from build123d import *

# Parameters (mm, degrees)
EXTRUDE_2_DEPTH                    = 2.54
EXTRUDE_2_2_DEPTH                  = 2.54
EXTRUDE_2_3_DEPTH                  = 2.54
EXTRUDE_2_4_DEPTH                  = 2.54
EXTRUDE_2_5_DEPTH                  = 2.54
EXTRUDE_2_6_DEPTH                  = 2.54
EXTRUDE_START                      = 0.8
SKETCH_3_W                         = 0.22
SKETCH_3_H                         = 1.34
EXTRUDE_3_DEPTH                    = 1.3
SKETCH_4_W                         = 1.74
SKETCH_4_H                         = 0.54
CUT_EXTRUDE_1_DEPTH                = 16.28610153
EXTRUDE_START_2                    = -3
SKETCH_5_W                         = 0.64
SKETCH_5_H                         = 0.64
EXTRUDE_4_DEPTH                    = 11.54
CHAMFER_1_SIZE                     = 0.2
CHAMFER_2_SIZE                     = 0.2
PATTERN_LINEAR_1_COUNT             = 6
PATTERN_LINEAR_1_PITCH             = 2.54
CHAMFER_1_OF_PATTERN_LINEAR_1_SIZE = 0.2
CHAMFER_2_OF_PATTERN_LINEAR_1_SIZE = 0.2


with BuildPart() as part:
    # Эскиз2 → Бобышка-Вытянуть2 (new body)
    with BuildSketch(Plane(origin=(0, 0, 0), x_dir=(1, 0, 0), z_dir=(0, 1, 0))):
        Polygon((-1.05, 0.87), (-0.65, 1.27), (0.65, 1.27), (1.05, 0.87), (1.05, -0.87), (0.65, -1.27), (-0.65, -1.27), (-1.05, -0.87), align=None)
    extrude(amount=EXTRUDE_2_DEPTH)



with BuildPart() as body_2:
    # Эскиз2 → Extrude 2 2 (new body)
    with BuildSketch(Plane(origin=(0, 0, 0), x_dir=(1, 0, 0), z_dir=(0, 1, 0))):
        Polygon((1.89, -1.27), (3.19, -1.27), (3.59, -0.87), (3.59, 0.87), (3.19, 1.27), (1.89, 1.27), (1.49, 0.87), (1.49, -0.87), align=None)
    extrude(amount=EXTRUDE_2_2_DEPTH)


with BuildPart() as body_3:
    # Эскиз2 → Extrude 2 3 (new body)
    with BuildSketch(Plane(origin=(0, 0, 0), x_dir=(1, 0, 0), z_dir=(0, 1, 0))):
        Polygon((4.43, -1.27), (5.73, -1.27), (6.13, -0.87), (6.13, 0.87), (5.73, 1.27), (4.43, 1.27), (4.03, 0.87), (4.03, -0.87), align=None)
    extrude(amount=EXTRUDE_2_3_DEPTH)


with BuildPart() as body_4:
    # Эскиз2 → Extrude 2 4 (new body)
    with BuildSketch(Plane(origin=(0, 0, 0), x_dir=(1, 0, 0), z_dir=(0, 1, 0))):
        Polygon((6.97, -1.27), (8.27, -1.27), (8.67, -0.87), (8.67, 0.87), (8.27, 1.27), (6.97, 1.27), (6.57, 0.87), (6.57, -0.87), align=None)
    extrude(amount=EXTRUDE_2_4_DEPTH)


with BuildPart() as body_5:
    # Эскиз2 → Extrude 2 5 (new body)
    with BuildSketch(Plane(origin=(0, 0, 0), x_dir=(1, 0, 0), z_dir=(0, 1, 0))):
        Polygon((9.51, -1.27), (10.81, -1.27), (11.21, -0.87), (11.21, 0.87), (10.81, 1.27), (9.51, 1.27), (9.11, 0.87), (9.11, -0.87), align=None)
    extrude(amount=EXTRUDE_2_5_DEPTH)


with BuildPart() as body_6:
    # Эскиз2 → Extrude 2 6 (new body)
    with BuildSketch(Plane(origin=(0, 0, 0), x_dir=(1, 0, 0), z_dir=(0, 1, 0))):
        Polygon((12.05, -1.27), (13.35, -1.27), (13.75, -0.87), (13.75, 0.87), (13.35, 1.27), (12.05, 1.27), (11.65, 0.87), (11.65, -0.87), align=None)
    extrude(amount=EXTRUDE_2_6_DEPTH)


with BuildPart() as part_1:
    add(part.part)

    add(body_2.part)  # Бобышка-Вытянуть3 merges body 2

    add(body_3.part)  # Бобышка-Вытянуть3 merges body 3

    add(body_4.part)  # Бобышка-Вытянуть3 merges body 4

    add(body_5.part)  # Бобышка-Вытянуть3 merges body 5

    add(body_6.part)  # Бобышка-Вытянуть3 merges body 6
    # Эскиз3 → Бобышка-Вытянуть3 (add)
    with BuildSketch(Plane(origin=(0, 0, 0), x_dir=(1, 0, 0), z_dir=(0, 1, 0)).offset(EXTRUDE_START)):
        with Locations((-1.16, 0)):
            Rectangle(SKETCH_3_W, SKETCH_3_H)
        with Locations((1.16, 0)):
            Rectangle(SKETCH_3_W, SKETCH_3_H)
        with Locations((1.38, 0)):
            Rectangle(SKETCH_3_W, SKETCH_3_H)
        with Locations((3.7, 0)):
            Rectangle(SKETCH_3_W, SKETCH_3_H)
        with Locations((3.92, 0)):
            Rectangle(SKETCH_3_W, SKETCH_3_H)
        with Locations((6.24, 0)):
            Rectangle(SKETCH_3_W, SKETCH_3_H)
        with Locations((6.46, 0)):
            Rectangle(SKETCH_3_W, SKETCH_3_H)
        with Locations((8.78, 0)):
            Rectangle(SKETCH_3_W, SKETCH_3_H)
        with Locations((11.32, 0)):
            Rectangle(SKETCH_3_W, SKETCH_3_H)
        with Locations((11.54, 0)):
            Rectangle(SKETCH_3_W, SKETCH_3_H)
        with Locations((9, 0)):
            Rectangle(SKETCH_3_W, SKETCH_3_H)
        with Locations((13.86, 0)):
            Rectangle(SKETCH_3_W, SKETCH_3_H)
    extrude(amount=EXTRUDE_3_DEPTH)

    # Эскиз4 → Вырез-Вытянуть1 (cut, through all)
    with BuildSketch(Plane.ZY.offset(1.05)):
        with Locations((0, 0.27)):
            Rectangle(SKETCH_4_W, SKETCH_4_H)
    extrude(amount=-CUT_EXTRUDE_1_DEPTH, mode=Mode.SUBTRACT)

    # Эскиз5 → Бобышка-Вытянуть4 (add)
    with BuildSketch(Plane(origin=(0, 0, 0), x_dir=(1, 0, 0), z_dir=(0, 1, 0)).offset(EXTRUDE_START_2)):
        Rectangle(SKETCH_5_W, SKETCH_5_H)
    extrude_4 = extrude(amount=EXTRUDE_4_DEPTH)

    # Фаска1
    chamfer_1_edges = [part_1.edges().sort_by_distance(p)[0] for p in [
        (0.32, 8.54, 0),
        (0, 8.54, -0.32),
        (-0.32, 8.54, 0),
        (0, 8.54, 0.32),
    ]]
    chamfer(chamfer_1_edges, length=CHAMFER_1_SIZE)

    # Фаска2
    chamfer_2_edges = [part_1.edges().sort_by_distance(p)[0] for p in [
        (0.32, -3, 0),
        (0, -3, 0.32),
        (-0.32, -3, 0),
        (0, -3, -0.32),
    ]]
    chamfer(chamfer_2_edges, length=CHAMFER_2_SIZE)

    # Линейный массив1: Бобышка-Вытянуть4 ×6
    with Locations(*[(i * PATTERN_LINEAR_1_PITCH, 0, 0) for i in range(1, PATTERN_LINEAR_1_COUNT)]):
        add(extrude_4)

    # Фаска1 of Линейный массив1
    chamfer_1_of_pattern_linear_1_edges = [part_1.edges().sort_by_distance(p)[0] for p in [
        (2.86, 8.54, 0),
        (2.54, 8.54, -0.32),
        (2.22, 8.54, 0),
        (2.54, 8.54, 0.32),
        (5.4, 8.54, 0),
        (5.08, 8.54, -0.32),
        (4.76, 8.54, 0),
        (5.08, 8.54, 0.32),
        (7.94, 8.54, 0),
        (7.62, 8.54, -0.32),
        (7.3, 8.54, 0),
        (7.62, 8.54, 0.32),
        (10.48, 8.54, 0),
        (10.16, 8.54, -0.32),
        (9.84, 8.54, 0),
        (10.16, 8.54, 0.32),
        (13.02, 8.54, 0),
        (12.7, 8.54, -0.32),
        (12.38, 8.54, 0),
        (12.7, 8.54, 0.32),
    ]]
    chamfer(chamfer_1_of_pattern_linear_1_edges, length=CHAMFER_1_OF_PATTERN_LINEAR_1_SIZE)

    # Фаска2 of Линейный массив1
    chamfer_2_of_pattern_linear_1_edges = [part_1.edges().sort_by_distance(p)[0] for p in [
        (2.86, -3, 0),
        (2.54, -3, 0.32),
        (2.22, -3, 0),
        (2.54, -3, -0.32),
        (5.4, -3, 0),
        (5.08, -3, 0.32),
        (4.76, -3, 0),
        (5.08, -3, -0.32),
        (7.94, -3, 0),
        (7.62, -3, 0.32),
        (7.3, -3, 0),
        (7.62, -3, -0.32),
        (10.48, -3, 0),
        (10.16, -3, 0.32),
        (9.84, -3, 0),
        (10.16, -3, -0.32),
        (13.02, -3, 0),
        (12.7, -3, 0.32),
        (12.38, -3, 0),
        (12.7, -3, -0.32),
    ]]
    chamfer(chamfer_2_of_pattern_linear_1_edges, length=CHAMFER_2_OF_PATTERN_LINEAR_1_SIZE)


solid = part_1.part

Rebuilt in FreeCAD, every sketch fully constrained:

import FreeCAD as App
import Part
import Sketcher

V = App.Vector
Q = App.Units.Quantity


def edges_at(feature, points):
    """Names of the edges that pass closest to the given points."""
    edges = feature.Shape.Edges
    near = lambda p: min(range(len(edges)), key=lambda i: edges[i].distToShape(Part.Vertex(*p))[0])
    return sorted({f"Edge{near(p) + 1}" for p in points})


def add_polygon(sketch, points):
    """Adds a closed chain of lines whose ends are joined by coincident constraints."""
    first, n = sketch.GeometryCount, len(points)
    for a, b in zip(points, points[1:] + points[:1]):
        sketch.addGeometry(Part.LineSegment(App.Vector(*a, 0), App.Vector(*b, 0)), False)
    for i in range(n):
        sketch.addConstraint(Sketcher.Constraint("Coincident", first + i, 2, first + (i + 1) % n, 1))

doc = App.newDocument("Part")
body = doc.addObject("PartDesign::Body", "Body")

sketch1 = doc.addObject("Sketcher::SketchObject", "Sketch")
body.addObject(sketch1)
sketch1.AttachmentSupport = (doc.XZ_Plane, [""])
sketch1.MapMode = "FlatFace"
add_polygon(sketch1, [(-0.7, -1.3), (-1.1, -0.9), (-1.1, 0.9), (-0.7, 1.3), (0.7, 1.3), (1.1, 0.9), (1.1, -0.9), (0.7, -1.3)])
sketch1.addConstraint([
    Sketcher.Constraint("Vertical", 1),
    Sketcher.Constraint("Horizontal", 3),
    Sketcher.Constraint("Vertical", 5),
    Sketcher.Constraint("Horizontal", 7),
    Sketcher.Constraint("Symmetric", 0, 2, 4, 2, -1, 1),
    Sketcher.Constraint("Symmetric", 2, 2, 6, 2, -1, 1),
    Sketcher.Constraint("Perpendicular", 0, 2),
    Sketcher.Constraint("Perpendicular", 2, 4),
    Sketcher.Constraint("Perpendicular", 4, 6),
    Sketcher.Constraint("Horizontal", 1, 2, 4, 2),
    Sketcher.Constraint("Vertical", 3, 2, 6, 2),
    Sketcher.Constraint("DistanceX", 3, 1, 3, 2, Q("1.3 mm")),
    Sketcher.Constraint("DistanceY", 1, 1, 1, 2, Q("1.74 mm")),
    Sketcher.Constraint("DistanceX", 1, 2, 2, 2, Q("0.4 mm")),
])
pad1 = doc.addObject("PartDesign::Pad", "Pad")
body.addObject(pad1)
pad1.Profile = sketch1
pad1.Length = 2.54
pad1.Reversed = True
body2 = doc.addObject("PartDesign::Body", "Body001")

sketch2 = doc.addObject("Sketcher::SketchObject", "Sketch001")
body2.addObject(sketch2)
sketch2.AttachmentSupport = (doc.getObject("XZ_Plane001"), [""])
sketch2.MapMode = "FlatFace"
add_polygon(sketch2, [(1.9, 1.3), (3.2, 1.3), (3.6, 0.9), (3.6, -0.9), (3.2, -1.3), (1.9, -1.3), (1.5, -0.9), (1.5, 0.9)])
sketch2.addConstraint([
    Sketcher.Constraint("Horizontal", 0),
    Sketcher.Constraint("Vertical", 2),
    Sketcher.Constraint("Horizontal", 4),
    Sketcher.Constraint("Vertical", 6),
    Sketcher.Constraint("Symmetric", 0, 2, 3, 2, -1),
    Sketcher.Constraint("Perpendicular", 1, 3),
    Sketcher.Constraint("Perpendicular", 3, 5),
    Sketcher.Constraint("Perpendicular", 5, 7),
    Sketcher.Constraint("Horizontal", 2, 2, 5, 2),
    Sketcher.Constraint("Horizontal", 1, 2, 6, 2),
    Sketcher.Constraint("Vertical", 4, 2, 7, 2),
    Sketcher.Constraint("DistanceX", 0, 1, 0, 2, Q("1.3 mm")),
    Sketcher.Constraint("DistanceY", 2, 2, 2, 1, Q("1.74 mm")),
    Sketcher.Constraint("DistanceX", 0, 2, 1, 2, Q("0.4 mm")),
    Sketcher.Constraint("DistanceX", -1, 1, 0, 2, Q("3.19 mm")),
])
pad2 = doc.addObject("PartDesign::Pad", "Pad001")
body2.addObject(pad2)
pad2.Profile = sketch2
pad2.Length = 2.54
pad2.Reversed = True
body3 = doc.addObject("PartDesign::Body", "Body002")

sketch3 = doc.addObject("Sketcher::SketchObject", "Sketch002")
body3.addObject(sketch3)
sketch3.AttachmentSupport = (doc.getObject("XZ_Plane002"), [""])
sketch3.MapMode = "FlatFace"
add_polygon(sketch3, [(4.4, 1.3), (5.7, 1.3), (6.1, 0.9), (6.1, -0.9), (5.7, -1.3), (4.4, -1.3), (4, -0.9), (4, 0.9)])
sketch3.addConstraint([
    Sketcher.Constraint("Horizontal", 0),
    Sketcher.Constraint("Vertical", 2),
    Sketcher.Constraint("Horizontal", 4),
    Sketcher.Constraint("Vertical", 6),
    Sketcher.Constraint("Symmetric", 0, 2, 3, 2, -1),
    Sketcher.Constraint("Perpendicular", 1, 3),
    Sketcher.Constraint("Perpendicular", 3, 5),
    Sketcher.Constraint("Perpendicular", 5, 7),
    Sketcher.Constraint("Horizontal", 2, 2, 5, 2),
    Sketcher.Constraint("Horizontal", 1, 2, 6, 2),
    Sketcher.Constraint("Vertical", 4, 2, 7, 2),
    Sketcher.Constraint("DistanceX", 0, 1, 0, 2, Q("1.3 mm")),
    Sketcher.Constraint("DistanceY", 2, 2, 2, 1, Q("1.74 mm")),
    Sketcher.Constraint("DistanceX", 0, 2, 1, 2, Q("0.4 mm")),
    Sketcher.Constraint("DistanceX", -1, 1, 0, 2, Q("5.73 mm")),
])
pad3 = doc.addObject("PartDesign::Pad", "Pad002")
body3.addObject(pad3)
pad3.Profile = sketch3
pad3.Length = 2.54
pad3.Reversed = True
body4 = doc.addObject("PartDesign::Body", "Body003")

sketch4 = doc.addObject("Sketcher::SketchObject", "Sketch003")
body4.addObject(sketch4)
sketch4.AttachmentSupport = (doc.getObject("XZ_Plane003"), [""])
sketch4.MapMode = "FlatFace"
add_polygon(sketch4, [(7, 1.3), (8.3, 1.3), (8.7, 0.9), (8.7, -0.9), (8.3, -1.3), (7, -1.3), (6.6, -0.9), (6.6, 0.9)])
sketch4.addConstraint([
    Sketcher.Constraint("Horizontal", 0),
    Sketcher.Constraint("Vertical", 2),
    Sketcher.Constraint("Horizontal", 4),
    Sketcher.Constraint("Vertical", 6),
    Sketcher.Constraint("Symmetric", 0, 2, 3, 2, -1),
    Sketcher.Constraint("Perpendicular", 1, 3),
    Sketcher.Constraint("Perpendicular", 3, 5),
    Sketcher.Constraint("Perpendicular", 5, 7),
    Sketcher.Constraint("Horizontal", 2, 2, 5, 2),
    Sketcher.Constraint("Horizontal", 1, 2, 6, 2),
    Sketcher.Constraint("Vertical", 4, 2, 7, 2),
    Sketcher.Constraint("DistanceX", 0, 1, 0, 2, Q("1.3 mm")),
    Sketcher.Constraint("DistanceY", 2, 2, 2, 1, Q("1.74 mm")),
    Sketcher.Constraint("DistanceX", 0, 2, 1, 2, Q("0.4 mm")),
    Sketcher.Constraint("DistanceX", -1, 1, 0, 2, Q("8.27 mm")),
])
pad4 = doc.addObject("PartDesign::Pad", "Pad003")
body4.addObject(pad4)
pad4.Profile = sketch4
pad4.Length = 2.54
pad4.Reversed = True
body5 = doc.addObject("PartDesign::Body", "Body004")

sketch5 = doc.addObject("Sketcher::SketchObject", "Sketch004")
body5.addObject(sketch5)
sketch5.AttachmentSupport = (doc.getObject("XZ_Plane004"), [""])
sketch5.MapMode = "FlatFace"
add_polygon(sketch5, [(9.5, 1.3), (10.8, 1.3), (11.2, 0.9), (11.2, -0.9), (10.8, -1.3), (9.5, -1.3), (9.1, -0.9), (9.1, 0.9)])
sketch5.addConstraint([
    Sketcher.Constraint("Horizontal", 0),
    Sketcher.Constraint("Vertical", 2),
    Sketcher.Constraint("Horizontal", 4),
    Sketcher.Constraint("Vertical", 6),
    Sketcher.Constraint("Symmetric", 0, 2, 3, 2, -1),
    Sketcher.Constraint("Perpendicular", 1, 3),
    Sketcher.Constraint("Perpendicular", 3, 5),
    Sketcher.Constraint("Perpendicular", 5, 7),
    Sketcher.Constraint("Horizontal", 2, 2, 5, 2),
    Sketcher.Constraint("Horizontal", 1, 2, 6, 2),
    Sketcher.Constraint("Vertical", 4, 2, 7, 2),
    Sketcher.Constraint("DistanceX", 0, 1, 0, 2, Q("1.3 mm")),
    Sketcher.Constraint("DistanceY", 2, 2, 2, 1, Q("1.74 mm")),
    Sketcher.Constraint("DistanceX", 0, 2, 1, 2, Q("0.4 mm")),
    Sketcher.Constraint("DistanceX", -1, 1, 0, 2, Q("10.81 mm")),
])
pad5 = doc.addObject("PartDesign::Pad", "Pad004")
body5.addObject(pad5)
pad5.Profile = sketch5
pad5.Length = 2.54
pad5.Reversed = True
body6 = doc.addObject("PartDesign::Body", "Body005")

sketch6 = doc.addObject("Sketcher::SketchObject", "Sketch005")
body6.addObject(sketch6)
sketch6.AttachmentSupport = (doc.getObject("XZ_Plane005"), [""])
sketch6.MapMode = "FlatFace"
add_polygon(sketch6, [(12.1, 1.3), (13.3, 1.3), (13.8, 0.9), (13.8, -0.9), (13.3, -1.3), (12.1, -1.3), (11.7, -0.9), (11.7, 0.9)])
sketch6.addConstraint([
    Sketcher.Constraint("Horizontal", 0),
    Sketcher.Constraint("Vertical", 2),
    Sketcher.Constraint("Horizontal", 4),
    Sketcher.Constraint("Vertical", 6),
    Sketcher.Constraint("Symmetric", 0, 2, 3, 2, -1),
    Sketcher.Constraint("Perpendicular", 1, 3),
    Sketcher.Constraint("Perpendicular", 3, 5),
    Sketcher.Constraint("Perpendicular", 5, 7),
    Sketcher.Constraint("Horizontal", 2, 2, 5, 2),
    Sketcher.Constraint("Horizontal", 1, 2, 6, 2),
    Sketcher.Constraint("Vertical", 4, 2, 7, 2),
    Sketcher.Constraint("DistanceX", 0, 1, 0, 2, Q("1.3 mm")),
    Sketcher.Constraint("DistanceY", 2, 2, 2, 1, Q("1.74 mm")),
    Sketcher.Constraint("DistanceX", 0, 2, 1, 2, Q("0.4 mm")),
    Sketcher.Constraint("DistanceX", -1, 1, 0, 2, Q("13.35 mm")),
])
pad6 = doc.addObject("PartDesign::Pad", "Pad005")
body6.addObject(pad6)
pad6.Profile = sketch6
pad6.Length = 2.54
pad6.Reversed = True
body.AllowCompound = True
doc.recompute()

boolean = doc.addObject("PartDesign::Boolean", "Boolean")
body.addObject(boolean)
boolean.Type = "Fuse"
boolean.addObjects([body2])
doc.recompute()

boolean2 = doc.addObject("PartDesign::Boolean", "Boolean001")
body.addObject(boolean2)
boolean2.Type = "Fuse"
boolean2.addObjects([body3])
doc.recompute()

boolean3 = doc.addObject("PartDesign::Boolean", "Boolean002")
body.addObject(boolean3)
boolean3.Type = "Fuse"
boolean3.addObjects([body4])
doc.recompute()

boolean4 = doc.addObject("PartDesign::Boolean", "Boolean003")
body.addObject(boolean4)
boolean4.Type = "Fuse"
boolean4.addObjects([body5])
doc.recompute()

boolean5 = doc.addObject("PartDesign::Boolean", "Boolean004")
body.addObject(boolean5)
boolean5.Type = "Fuse"
boolean5.addObjects([body6])

sketch7 = doc.addObject("Sketcher::SketchObject", "Sketch006")
body.addObject(sketch7)
sketch7.AttachmentSupport = (doc.XZ_Plane, [""])
sketch7.MapMode = "FlatFace"
sketch7.AttachmentOffset = App.Placement(V(0, 0, -0.8), App.Rotation())
add_polygon(sketch7, [(-1.27, -0.67), (-1.27, 0.67), (-1.05, 0.67), (-1.05, -0.67)])
add_polygon(sketch7, [(1.05, -0.67), (1.05, 0.67), (1.49, 0.67), (1.49, -0.67)])
add_polygon(sketch7, [(3.59, -0.67), (3.59, 0.67), (4.03, 0.67), (4.03, -0.67)])
add_polygon(sketch7, [(6.13, -0.67), (6.13, 0.67), (6.57, 0.67), (6.57, -0.67)])
add_polygon(sketch7, [(8.67, -0.67), (8.67, 0.67), (9.11, 0.67), (9.11, -0.67)])
add_polygon(sketch7, [(11.21, -0.67), (11.21, 0.67), (11.65, 0.67), (11.65, -0.67)])
add_polygon(sketch7, [(13.75, -0.67), (13.75, 0.67), (13.97, 0.67), (13.97, -0.67)])
sketch7.addConstraint([
    Sketcher.Constraint("Vertical", 0),
    Sketcher.Constraint("Horizontal", 1),
    Sketcher.Constraint("Vertical", 2),
    Sketcher.Constraint("Horizontal", 3),
    Sketcher.Constraint("Vertical", 4),
    Sketcher.Constraint("Horizontal", 5),
    Sketcher.Constraint("Vertical", 6),
    Sketcher.Constraint("Horizontal", 7),
    Sketcher.Constraint("Vertical", 8),
    Sketcher.Constraint("Horizontal", 9),
    Sketcher.Constraint("Vertical", 10),
    Sketcher.Constraint("Horizontal", 11),
    Sketcher.Constraint("Vertical", 12),
    Sketcher.Constraint("Horizontal", 13),
    Sketcher.Constraint("Vertical", 14),
    Sketcher.Constraint("Horizontal", 15),
    Sketcher.Constraint("Vertical", 16),
    Sketcher.Constraint("Horizontal", 17),
    Sketcher.Constraint("Vertical", 18),
    Sketcher.Constraint("Horizontal", 19),
    Sketcher.Constraint("Vertical", 20),
    Sketcher.Constraint("Horizontal", 21),
    Sketcher.Constraint("Vertical", 22),
    Sketcher.Constraint("Horizontal", 23),
    Sketcher.Constraint("Vertical", 24),
    Sketcher.Constraint("Horizontal", 25),
    Sketcher.Constraint("Vertical", 26),
    Sketcher.Constraint("Horizontal", 27),
    Sketcher.Constraint("Symmetric", 2, 2, 4, 2, -1, 1),
    Sketcher.Constraint("Horizontal", 1, 2, 4, 2),
    Sketcher.Constraint("Horizontal", 3, 2, 6, 2),
    Sketcher.Constraint("Horizontal", 5, 2, 8, 2),
    Sketcher.Constraint("Horizontal", 7, 2, 10, 2),
    Sketcher.Constraint("Horizontal", 9, 2, 12, 2),
    Sketcher.Constraint("Horizontal", 11, 2, 14, 2),
    Sketcher.Constraint("Horizontal", 13, 2, 16, 2),
    Sketcher.Constraint("Horizontal", 15, 2, 18, 2),
    Sketcher.Constraint("Horizontal", 17, 2, 20, 2),
    Sketcher.Constraint("Horizontal", 19, 2, 22, 2),
    Sketcher.Constraint("Horizontal", 21, 2, 24, 2),
    Sketcher.Constraint("Horizontal", 23, 2, 26, 2),
    Sketcher.Constraint("Equal", 7, 9),
    Sketcher.Constraint("Equal", 11, 13),
    Sketcher.Constraint("Equal", 15, 17),
    Sketcher.Constraint("Equal", 19, 21),
    Sketcher.Constraint("Equal", 3, 25),
    Sketcher.Constraint("DistanceX", 1, 1, 1, 2, Q("0.22 mm")),
    Sketcher.Constraint("DistanceX", 5, 1, 5, 2, Q("0.44 mm")),
    Sketcher.Constraint("DistanceY", 0, 1, 0, 2, Q("1.34 mm")),
    Sketcher.Constraint("DistanceX", 1, 2, 4, 2, Q("2.1 mm")),
    Sketcher.Constraint("DistanceX", 5, 2, 8, 2, Q("2.1 mm")),
    Sketcher.Constraint("DistanceX", 9, 2, 12, 2, Q("2.1 mm")),
    Sketcher.Constraint("DistanceX", 13, 2, 16, 2, Q("2.1 mm")),
    Sketcher.Constraint("DistanceX", 17, 2, 20, 2, Q("2.1 mm")),
    Sketcher.Constraint("DistanceX", 21, 2, 24, 2, Q("2.1 mm")),
])
pad7 = doc.addObject("PartDesign::Pad", "Pad006")
body.addObject(pad7)
pad7.Profile = sketch7
pad7.Length = 1.3
pad7.Reversed = True

sketch8 = doc.addObject("Sketcher::SketchObject", "Sketch007")
body.addObject(sketch8)
sketch8.AttachmentSupport = (doc.YZ_Plane, [""])
sketch8.MapMode = "FlatFace"
sketch8.AttachmentOffset = App.Placement(V(0, 0, -1.05), App.Rotation())
add_polygon(sketch8, [(0.5, -0.9), (0, -0.9), (0, 0.9), (0.5, 0.9)])
sketch8.addConstraint([
    Sketcher.Constraint("Horizontal", 0),
    Sketcher.Constraint("Vertical", 1),
    Sketcher.Constraint("Horizontal", 2),
    Sketcher.Constraint("Vertical", 3),
    Sketcher.Constraint("Symmetric", 0, 2, 1, 2, -1, 1),
    Sketcher.Constraint("DistanceX", 0, 2, 0, 1, Q("0.54 mm")),
    Sketcher.Constraint("DistanceY", 1, 1, 1, 2, Q("1.74 mm")),
])
pocket1 = doc.addObject("PartDesign::Pocket", "Pocket")
body.addObject(pocket1)
pocket1.Profile = sketch8
pocket1.Type = "ThroughAll"
pocket1.Reversed = True

sketch9 = doc.addObject("Sketcher::SketchObject", "Sketch008")
body.addObject(sketch9)
sketch9.AttachmentSupport = (doc.XZ_Plane, [""])
sketch9.MapMode = "FlatFace"
sketch9.AttachmentOffset = App.Placement(V(0, 0, 3), App.Rotation())
add_polygon(sketch9, [(-0.3, -0.3), (-0.3, 0.3), (0.3, 0.3), (0.3, -0.3)])
sketch9.addConstraint([
    Sketcher.Constraint("Vertical", 0),
    Sketcher.Constraint("Horizontal", 1),
    Sketcher.Constraint("Vertical", 2),
    Sketcher.Constraint("Horizontal", 3),
    Sketcher.Constraint("Symmetric", 0, 2, 2, 2, -1, 1),
    Sketcher.Constraint("Equal", 3, 0),
    Sketcher.Constraint("DistanceX", 1, 1, 1, 2, Q("0.64 mm")),
])
pad8 = doc.addObject("PartDesign::Pad", "Pad007")
body.addObject(pad8)
pad8.Profile = sketch9
pad8.Length = 11.54
pad8.Reversed = True
doc.recompute()

chamfer = doc.addObject("PartDesign::Chamfer", "Chamfer")
body.addObject(chamfer)
chamfer.Base = (pad8, edges_at(pad8, [
    (0.32, 8.54, 0),
    (0, 8.54, -0.32),
    (-0.32, 8.54, 0),
    (0, 8.54, 0.32),
]))
chamfer.Size = 0.2
doc.recompute()

chamfer2 = doc.addObject("PartDesign::Chamfer", "Chamfer001")
body.addObject(chamfer2)
chamfer2.Base = (chamfer, edges_at(chamfer, [
    (0.32, -3, 0),
    (0, -3, 0.32),
    (-0.32, -3, 0),
    (0, -3, -0.32),
]))
chamfer2.Size = 0.2
doc.recompute()

linearpattern = doc.addObject("PartDesign::LinearPattern", "LinearPattern")
body.addObject(linearpattern)
linearpattern.Originals = [pad8]
linearpattern.Direction = (doc.X_Axis, [""])
linearpattern.Mode = "offset"
linearpattern.Offset = 2.54
linearpattern.Occurrences = 6
body.Tip = linearpattern
doc.recompute()

chamfer3 = doc.addObject("PartDesign::Chamfer", "Chamfer002")
body.addObject(chamfer3)
chamfer3.Base = (linearpattern, edges_at(linearpattern, [
    (2.86, 8.54, 0),
    (2.54, 8.54, -0.32),
    (2.22, 8.54, 0),
    (2.54, 8.54, 0.32),
    (5.4, 8.54, 0),
    (5.08, 8.54, -0.32),
    (4.76, 8.54, 0),
    (5.08, 8.54, 0.32),
    (7.94, 8.54, 0),
    (7.62, 8.54, -0.32),
    (7.3, 8.54, 0),
    (7.62, 8.54, 0.32),
    (10.48, 8.54, 0),
    (10.16, 8.54, -0.32),
    (9.84, 8.54, 0),
    (10.16, 8.54, 0.32),
    (13.02, 8.54, 0),
    (12.7, 8.54, -0.32),
    (12.38, 8.54, 0),
    (12.7, 8.54, 0.32),
]))
chamfer3.Size = 0.2
doc.recompute()

chamfer4 = doc.addObject("PartDesign::Chamfer", "Chamfer003")
body.addObject(chamfer4)
chamfer4.Base = (chamfer3, edges_at(chamfer3, [
    (2.86, -3, 0),
    (2.54, -3, 0.32),
    (2.22, -3, 0),
    (2.54, -3, -0.32),
    (5.4, -3, 0),
    (5.08, -3, 0.32),
    (4.76, -3, 0),
    (5.08, -3, -0.32),
    (7.94, -3, 0),
    (7.62, -3, 0.32),
    (7.3, -3, 0),
    (7.62, -3, -0.32),
    (10.48, -3, 0),
    (10.16, -3, 0.32),
    (9.84, -3, 0),
    (10.16, -3, -0.32),
    (13.02, -3, 0),
    (12.7, -3, 0.32),
    (12.38, -3, 0),
    (12.7, -3, -0.32),
]))
chamfer4.Size = 0.2

doc.recompute()
